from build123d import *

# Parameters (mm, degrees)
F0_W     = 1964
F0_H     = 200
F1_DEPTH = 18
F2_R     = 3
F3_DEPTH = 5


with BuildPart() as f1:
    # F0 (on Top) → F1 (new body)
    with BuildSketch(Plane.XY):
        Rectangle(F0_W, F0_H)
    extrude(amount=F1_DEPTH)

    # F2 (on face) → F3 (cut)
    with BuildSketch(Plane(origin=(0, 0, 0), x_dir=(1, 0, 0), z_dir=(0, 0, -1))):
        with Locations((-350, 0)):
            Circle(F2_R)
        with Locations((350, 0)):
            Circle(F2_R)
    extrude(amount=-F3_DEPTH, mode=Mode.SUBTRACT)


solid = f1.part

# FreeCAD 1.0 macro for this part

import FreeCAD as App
import Part
import Sketcher


def add_polygon(sketch, points):
    """Adds a closed chain of lines whose ends are joined by coincident constraints."""
    first, n = sketch.GeometryCount, len(points)
    for a, b in zip(points, points[1:] + points[:1]):
        sketch.addGeometry(Part.LineSegment(App.Vector(*a, 0), App.Vector(*b, 0)), False)
    for i in range(n):
        sketch.addConstraint(Sketcher.Constraint("Coincident", first + i, 2, first + (i + 1) % n, 1))

doc = App.newDocument("Part")
body = doc.addObject("PartDesign::Body", "Body")

# Sketch on XY plane
sketch1 = body.newObject("Sketcher::SketchObject", "Sketch")
sketch1.AttachmentSupport = (doc.getObject("XY_Plane"), [""])
sketch1.MapMode = "FlatFace"
add_polygon(sketch1, [(-982, 100), (-982, -100), (982, -100), (982, 100)])  # lines 0-3
sketch1.addConstraint([
    Sketcher.Constraint("Vertical", 0),
    Sketcher.Constraint("Horizontal", 1),
    Sketcher.Constraint("Vertical", 2),
    Sketcher.Constraint("Horizontal", 3),
    Sketcher.Constraint("Symmetric", 0, 2, 2, 2, -1, 1),
    Sketcher.Constraint("DistanceX", 1, 1, 1, 2, 1964.0),
    Sketcher.Constraint("DistanceY", 0, 2, 0, 1, 200.0),
])
pad1 = body.newObject("PartDesign::Pad", "Pad")
pad1.Profile = sketch1
pad1.Length = 18

# Sketch on XY plane
sketch2 = body.newObject("Sketcher::SketchObject", "Sketch001")
sketch2.AttachmentSupport = (doc.getObject("XY_Plane"), [""])
sketch2.MapMode = "FlatFace"
sketch2.addGeometry([
    Part.Circle(App.Vector(-350, 0, 0), App.Vector(0, 0, 1), 3),
    Part.Circle(App.Vector(350, 0, 0), App.Vector(0, 0, 1), 3),
], False)
sketch2.addConstraint([
    Sketcher.Constraint("Equal", 0, 1),
    Sketcher.Constraint("Symmetric", 0, 3, 1, 3, -1, 1),
    Sketcher.Constraint("PointOnObject", 0, 3, -1),
    Sketcher.Constraint("Diameter", 0, 6.0),
    Sketcher.Constraint("DistanceX", 0, 3, -1, 1, 350.0),
])
pocket1 = body.newObject("PartDesign::Pocket", "Pocket")
pocket1.Profile = sketch2
pocket1.Length = 5
pocket1.Reversed = True

doc.recompute()
